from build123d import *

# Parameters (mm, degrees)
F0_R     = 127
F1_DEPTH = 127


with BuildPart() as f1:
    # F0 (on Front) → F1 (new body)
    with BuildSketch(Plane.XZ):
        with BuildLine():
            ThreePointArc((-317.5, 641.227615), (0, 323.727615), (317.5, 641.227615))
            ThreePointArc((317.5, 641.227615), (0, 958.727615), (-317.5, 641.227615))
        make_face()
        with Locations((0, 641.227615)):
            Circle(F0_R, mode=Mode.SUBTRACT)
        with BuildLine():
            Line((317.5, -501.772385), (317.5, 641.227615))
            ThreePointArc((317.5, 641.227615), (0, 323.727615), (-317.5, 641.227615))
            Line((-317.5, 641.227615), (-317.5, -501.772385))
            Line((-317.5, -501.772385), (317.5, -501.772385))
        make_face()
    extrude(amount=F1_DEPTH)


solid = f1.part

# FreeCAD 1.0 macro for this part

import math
import FreeCAD as App
import Part
import Sketcher
Q = App.Units.Quantity

doc = App.newDocument("Part")
body = doc.addObject("PartDesign::Body", "Body")

sketch1 = doc.addObject("Sketcher::SketchObject", "Sketch")
body.addObject(sketch1)
sketch1.AttachmentSupport = (doc.XZ_Plane, [""])
sketch1.MapMode = "FlatFace"
sketch1.addGeometry([
    Part.ArcOfCircle(Part.Circle(App.Vector(0, 641, 0), App.Vector(0, 0, 1), 318), math.radians(0), math.radians(180)),
    Part.LineSegment(App.Vector(-318, 641, 0), App.Vector(-318, -502, 0)),
    Part.LineSegment(App.Vector(-318, -502, 0), App.Vector(318, -502, 0)),
    Part.LineSegment(App.Vector(318, -502, 0), App.Vector(318, 641, 0)),
    Part.Circle(App.Vector(0, 641, 0), App.Vector(0, 0, 1), 127),
], False)
sketch1.addConstraint([
    Sketcher.Constraint("Tangent", 0, 2, 1, 1),
    Sketcher.Constraint("Coincident", 1, 2, 2, 1),
    Sketcher.Constraint("Coincident", 2, 2, 3, 1),
    Sketcher.Constraint("Tangent", 3, 2, 0, 1),
    Sketcher.Constraint("Vertical", 1),
    Sketcher.Constraint("Horizontal", 2),
    Sketcher.Constraint("Vertical", 3),
    Sketcher.Constraint("Coincident", 4, 3, 0, 3),
    Sketcher.Constraint("PointOnObject", 0, 3, -2),
    Sketcher.Constraint("Diameter", 4, Q("10 in")),
    Sketcher.Constraint("Radius", 0, Q("12.5 in")),
    Sketcher.Constraint("DistanceY", 1, 2, 1, 1, Q("45 in")),
    Sketcher.Constraint("DistanceY", -1, 1, 0, 3, Q("641.227615 mm")),
])
pad1 = doc.addObject("PartDesign::Pad", "Pad")
body.addObject(pad1)
pad1.Profile = sketch1
pad1.Length = Q("5 in")

doc.recompute()
